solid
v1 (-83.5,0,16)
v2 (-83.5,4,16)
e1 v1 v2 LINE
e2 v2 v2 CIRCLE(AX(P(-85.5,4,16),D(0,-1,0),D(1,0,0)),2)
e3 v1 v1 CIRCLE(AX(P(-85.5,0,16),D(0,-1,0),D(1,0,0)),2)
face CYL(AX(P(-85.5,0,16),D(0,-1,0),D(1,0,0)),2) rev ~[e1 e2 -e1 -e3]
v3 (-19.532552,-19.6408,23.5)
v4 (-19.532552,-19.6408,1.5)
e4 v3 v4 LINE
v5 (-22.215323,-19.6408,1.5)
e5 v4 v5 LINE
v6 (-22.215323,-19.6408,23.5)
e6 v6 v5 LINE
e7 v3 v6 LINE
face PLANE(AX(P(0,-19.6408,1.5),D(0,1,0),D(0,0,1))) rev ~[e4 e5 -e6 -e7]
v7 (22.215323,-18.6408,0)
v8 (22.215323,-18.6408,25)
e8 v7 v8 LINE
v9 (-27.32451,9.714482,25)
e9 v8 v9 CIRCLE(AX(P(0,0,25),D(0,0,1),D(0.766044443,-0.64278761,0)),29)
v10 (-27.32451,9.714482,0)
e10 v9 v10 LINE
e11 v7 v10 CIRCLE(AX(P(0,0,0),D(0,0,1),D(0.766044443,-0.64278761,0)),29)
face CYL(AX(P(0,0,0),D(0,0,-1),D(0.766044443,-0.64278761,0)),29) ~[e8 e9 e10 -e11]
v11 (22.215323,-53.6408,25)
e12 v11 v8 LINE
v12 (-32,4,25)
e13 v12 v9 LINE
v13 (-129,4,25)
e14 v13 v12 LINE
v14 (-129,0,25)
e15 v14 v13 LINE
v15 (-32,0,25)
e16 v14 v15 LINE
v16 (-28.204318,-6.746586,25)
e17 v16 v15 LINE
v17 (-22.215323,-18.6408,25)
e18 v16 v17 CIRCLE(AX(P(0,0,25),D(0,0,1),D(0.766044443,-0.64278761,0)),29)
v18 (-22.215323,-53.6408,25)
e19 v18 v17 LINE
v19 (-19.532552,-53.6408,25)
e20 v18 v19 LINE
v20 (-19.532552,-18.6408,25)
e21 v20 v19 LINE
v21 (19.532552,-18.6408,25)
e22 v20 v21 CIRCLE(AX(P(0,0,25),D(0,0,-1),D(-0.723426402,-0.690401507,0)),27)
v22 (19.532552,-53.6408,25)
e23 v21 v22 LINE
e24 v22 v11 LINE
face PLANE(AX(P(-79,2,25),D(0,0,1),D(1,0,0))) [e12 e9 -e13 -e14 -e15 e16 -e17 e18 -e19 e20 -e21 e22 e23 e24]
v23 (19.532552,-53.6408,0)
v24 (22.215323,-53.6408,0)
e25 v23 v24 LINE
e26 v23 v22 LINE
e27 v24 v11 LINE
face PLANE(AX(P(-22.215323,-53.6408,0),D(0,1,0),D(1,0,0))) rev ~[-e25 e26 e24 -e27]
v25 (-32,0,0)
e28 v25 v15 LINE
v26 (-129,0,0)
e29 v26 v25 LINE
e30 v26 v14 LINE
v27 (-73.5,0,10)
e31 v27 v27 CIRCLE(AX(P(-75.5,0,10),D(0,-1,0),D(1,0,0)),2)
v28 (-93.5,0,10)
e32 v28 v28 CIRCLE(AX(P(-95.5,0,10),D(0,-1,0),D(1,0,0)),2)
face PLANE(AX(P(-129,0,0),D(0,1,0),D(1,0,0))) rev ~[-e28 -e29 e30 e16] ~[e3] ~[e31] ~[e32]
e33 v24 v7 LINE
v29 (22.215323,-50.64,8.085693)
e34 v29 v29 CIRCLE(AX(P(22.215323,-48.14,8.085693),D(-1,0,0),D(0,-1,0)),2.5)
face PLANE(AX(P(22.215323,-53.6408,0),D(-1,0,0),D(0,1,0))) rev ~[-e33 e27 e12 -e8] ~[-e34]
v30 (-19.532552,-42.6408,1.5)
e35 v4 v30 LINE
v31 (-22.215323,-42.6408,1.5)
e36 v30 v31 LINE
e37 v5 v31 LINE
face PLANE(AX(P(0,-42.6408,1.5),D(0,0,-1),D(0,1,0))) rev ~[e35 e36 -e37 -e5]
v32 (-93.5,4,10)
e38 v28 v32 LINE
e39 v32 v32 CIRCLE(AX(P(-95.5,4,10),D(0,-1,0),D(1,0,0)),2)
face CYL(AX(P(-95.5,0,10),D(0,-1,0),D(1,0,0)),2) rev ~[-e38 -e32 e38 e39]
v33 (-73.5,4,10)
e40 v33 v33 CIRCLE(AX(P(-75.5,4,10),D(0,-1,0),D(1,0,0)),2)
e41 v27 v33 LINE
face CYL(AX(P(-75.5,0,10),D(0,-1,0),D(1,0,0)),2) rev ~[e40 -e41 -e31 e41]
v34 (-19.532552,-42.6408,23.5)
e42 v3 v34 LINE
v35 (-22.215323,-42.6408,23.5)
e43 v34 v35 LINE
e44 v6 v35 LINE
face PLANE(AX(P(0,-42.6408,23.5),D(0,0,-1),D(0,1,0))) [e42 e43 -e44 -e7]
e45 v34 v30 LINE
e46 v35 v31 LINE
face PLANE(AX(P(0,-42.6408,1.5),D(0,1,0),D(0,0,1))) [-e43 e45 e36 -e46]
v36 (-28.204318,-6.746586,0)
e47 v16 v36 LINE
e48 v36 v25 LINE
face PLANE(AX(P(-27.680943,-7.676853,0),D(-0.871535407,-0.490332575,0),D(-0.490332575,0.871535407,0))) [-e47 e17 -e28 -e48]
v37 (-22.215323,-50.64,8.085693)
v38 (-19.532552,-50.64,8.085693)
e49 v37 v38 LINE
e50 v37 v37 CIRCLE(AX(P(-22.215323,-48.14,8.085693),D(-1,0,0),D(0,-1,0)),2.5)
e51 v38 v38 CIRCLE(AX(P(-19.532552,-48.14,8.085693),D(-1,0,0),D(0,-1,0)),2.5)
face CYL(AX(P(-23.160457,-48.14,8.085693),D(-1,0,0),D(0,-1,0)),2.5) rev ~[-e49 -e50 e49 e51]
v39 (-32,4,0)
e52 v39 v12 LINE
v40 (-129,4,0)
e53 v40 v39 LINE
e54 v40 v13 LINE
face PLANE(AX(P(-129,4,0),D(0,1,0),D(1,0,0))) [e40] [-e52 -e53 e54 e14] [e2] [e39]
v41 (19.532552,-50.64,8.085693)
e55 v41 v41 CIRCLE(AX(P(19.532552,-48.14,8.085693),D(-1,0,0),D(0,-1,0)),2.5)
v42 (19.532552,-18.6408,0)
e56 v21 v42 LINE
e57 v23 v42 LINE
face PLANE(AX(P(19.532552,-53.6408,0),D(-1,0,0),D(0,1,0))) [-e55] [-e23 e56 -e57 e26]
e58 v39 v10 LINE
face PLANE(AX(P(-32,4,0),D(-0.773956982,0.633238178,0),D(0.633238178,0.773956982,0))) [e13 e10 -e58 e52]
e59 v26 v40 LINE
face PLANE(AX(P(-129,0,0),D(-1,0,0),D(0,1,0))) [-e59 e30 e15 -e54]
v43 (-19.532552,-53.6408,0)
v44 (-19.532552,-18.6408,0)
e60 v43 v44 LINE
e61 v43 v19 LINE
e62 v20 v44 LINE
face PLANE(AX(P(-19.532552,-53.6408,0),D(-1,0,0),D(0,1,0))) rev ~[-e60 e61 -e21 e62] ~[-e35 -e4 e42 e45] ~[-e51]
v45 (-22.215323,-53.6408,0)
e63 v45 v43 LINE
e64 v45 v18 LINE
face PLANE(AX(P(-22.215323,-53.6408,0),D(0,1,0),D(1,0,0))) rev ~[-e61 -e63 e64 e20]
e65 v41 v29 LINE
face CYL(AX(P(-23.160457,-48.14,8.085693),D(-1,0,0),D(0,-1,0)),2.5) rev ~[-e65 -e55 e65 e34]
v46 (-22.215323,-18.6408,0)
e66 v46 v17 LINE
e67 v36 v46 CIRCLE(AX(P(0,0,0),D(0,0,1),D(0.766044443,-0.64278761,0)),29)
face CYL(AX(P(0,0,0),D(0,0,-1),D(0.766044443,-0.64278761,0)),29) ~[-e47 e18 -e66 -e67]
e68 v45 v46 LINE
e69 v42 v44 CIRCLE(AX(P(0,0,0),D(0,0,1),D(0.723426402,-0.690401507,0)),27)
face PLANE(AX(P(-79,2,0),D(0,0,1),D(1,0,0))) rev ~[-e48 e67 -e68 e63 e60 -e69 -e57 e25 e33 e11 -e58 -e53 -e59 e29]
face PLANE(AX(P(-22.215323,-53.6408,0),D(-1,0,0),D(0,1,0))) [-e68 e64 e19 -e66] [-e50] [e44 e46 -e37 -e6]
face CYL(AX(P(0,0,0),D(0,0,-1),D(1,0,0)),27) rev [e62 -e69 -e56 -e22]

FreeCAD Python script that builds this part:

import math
import FreeCAD as App
import Part
import Sketcher


def add_polygon(sketch, points):
    """Adds a closed chain of lines whose ends are joined by coincident constraints."""
    first, n = sketch.GeometryCount, len(points)
    for a, b in zip(points, points[1:] + points[:1]):
        sketch.addGeometry(Part.LineSegment(App.Vector(*a, 0), App.Vector(*b, 0)), False)
    for i in range(n):
        sketch.addConstraint(Sketcher.Constraint("Coincident", first + i, 2, first + (i + 1) % n, 1))

doc = App.newDocument("Part")
body = doc.addObject("PartDesign::Body", "Body")

sketch1 = doc.addObject("Sketcher::SketchObject", "Sketch")
body.addObject(sketch1)
sketch1.AttachmentSupport = (doc.XY_Plane, [""])
sketch1.MapMode = "FlatFace"
sketch1.addGeometry(Part.ArcOfCircle(Part.Circle(App.Vector(0, 0, 0), App.Vector(0, 0, 1), 29), math.radians(-40), math.radians(220)), False)
sketch1.addGeometry(Part.LineSegment(App.Vector(-22.215289, -18.640841, 0), App.Vector(22.215289, -18.640841, 0)), False)
sketch1.addConstraint(Sketcher.Constraint("Coincident", 0, 1, 1, 2))
sketch1.addConstraint(Sketcher.Constraint("Coincident", 1, 1, 0, 2))
sketch1.addConstraint(Sketcher.Constraint("Horizontal", 1))
sketch1.addConstraint(Sketcher.Constraint("Coincident", 0, 3, -1, 1))
sketch1.addConstraint(Sketcher.Constraint("Radius", 0, 29.0))
sketch1.addConstraint(Sketcher.Constraint("DistanceX", 1, 1, 1, 2, 44.430578))
pad1 = doc.addObject("PartDesign::Pad", "Pad")
body.addObject(pad1)
pad1.Profile = sketch1
pad1.Length = 25

sketch2 = doc.addObject("Sketcher::SketchObject", "Sketch001")
body.addObject(sketch2)
sketch2.AttachmentSupport = (doc.XY_Plane, [""])
sketch2.MapMode = "FlatFace"
sketch2.addGeometry(Part.Circle(App.Vector(0, 0, 0), App.Vector(0, 0, 1), 27), False)
sketch2.addConstraint(Sketcher.Constraint("Coincident", 0, 3, -1, 1))
sketch2.addConstraint(Sketcher.Constraint("Diameter", 0, 54.0))
pocket1 = doc.addObject("PartDesign::Pocket", "Pocket")
body.addObject(pocket1)
pocket1.Profile = sketch2
pocket1.Length = 25
pocket1.Reversed = True

sketch3 = doc.addObject("Sketcher::SketchObject", "Sketch002")
body.addObject(sketch3)
sketch3.AttachmentSupport = (doc.XY_Plane, [""])
sketch3.MapMode = "FlatFace"
add_polygon(sketch3, [(-22.215323, -18.6408), (-22.215323, -53.6408), (22.215323, -53.6408), (22.215323, -18.6408)])
sketch3.addConstraint(Sketcher.Constraint("Vertical", 0))
sketch3.addConstraint(Sketcher.Constraint("Horizontal", 1))
sketch3.addConstraint(Sketcher.Constraint("Vertical", 2))
sketch3.addConstraint(Sketcher.Constraint("Horizontal", 3))
sketch3.addConstraint(Sketcher.Constraint("DistanceY", 0, 2, 0, 1, 35.0))
sketch3.addConstraint(Sketcher.Constraint("DistanceY", 0, 2, -1, 1, 53.6408))
sketch3.addConstraint(Sketcher.Constraint("DistanceX", 1, 1, 1, 2, 44.430646))
sketch3.addConstraint(Sketcher.Constraint("DistanceX", 0, 2, -1, 1, 22.215323))
pad2 = doc.addObject("PartDesign::Pad", "Pad001")
body.addObject(pad2)
pad2.Profile = sketch3
pad2.Length = 25

sketch4 = doc.addObject("Sketcher::SketchObject", "Sketch003")
body.addObject(sketch4)
sketch4.AttachmentSupport = (doc.XY_Plane, [""])
sketch4.MapMode = "FlatFace"
add_polygon(sketch4, [(-19.532552, -18.6408), (-19.532552, -53.6408), (19.532552, -53.6408), (19.532552, -18.6408)])
sketch4.addConstraint(Sketcher.Constraint("Vertical", 0))
sketch4.addConstraint(Sketcher.Constraint("Horizontal", 1))
sketch4.addConstraint(Sketcher.Constraint("Vertical", 2))
sketch4.addConstraint(Sketcher.Constraint("Horizontal", 3))
sketch4.addConstraint(Sketcher.Constraint("DistanceY", 0, 2, 0, 1, 35.0))
sketch4.addConstraint(Sketcher.Constraint("DistanceY", 0, 2, -1, 1, 53.6408))
sketch4.addConstraint(Sketcher.Constraint("DistanceX", 1, 1, 1, 2, 39.065103))
sketch4.addConstraint(Sketcher.Constraint("DistanceX", 0, 2, -1, 1, 19.532552))
pocket2 = doc.addObject("PartDesign::Pocket", "Pocket001")
body.addObject(pocket2)
pocket2.Profile = sketch4
pocket2.Length = 36
pocket2.Reversed = True

sketch5 = doc.addObject("Sketcher::SketchObject", "Sketch004")
body.addObject(sketch5)
sketch5.AttachmentSupport = (doc.YZ_Plane, [""])
sketch5.MapMode = "FlatFace"
add_polygon(sketch5, [(-42.6408, 23.5), (-42.6408, 1.5), (-19.6408, 1.5), (-19.6408, 23.5)])
sketch5.addConstraint(Sketcher.Constraint("Vertical", 0))
sketch5.addConstraint(Sketcher.Constraint("Horizontal", 1))
sketch5.addConstraint(Sketcher.Constraint("Vertical", 2))
sketch5.addConstraint(Sketcher.Constraint("Horizontal", 3))
sketch5.addConstraint(Sketcher.Constraint("DistanceX", 1, 1, 1, 2, 23.0))
sketch5.addConstraint(Sketcher.Constraint("DistanceY", 0, 2, 0, 1, 22.0))
sketch5.addConstraint(Sketcher.Constraint("DistanceY", -1, 1, 0, 2, 1.5))
sketch5.addConstraint(Sketcher.Constraint("DistanceX", 0, 2, -1, 1, 42.6408))
pocket3 = doc.addObject("PartDesign::Pocket", "Pocket002")
body.addObject(pocket3)
pocket3.Profile = sketch5
pocket3.Length = 36

sketch6 = doc.addObject("Sketcher::SketchObject", "Sketch005")
body.addObject(sketch6)
sketch6.AttachmentSupport = (doc.YZ_Plane, [""])
sketch6.MapMode = "FlatFace"
sketch6.AttachmentOffset = App.Placement(App.Vector(0, 0, -23.160457), App.Rotation())
sketch6.addGeometry(Part.Circle(App.Vector(-48.14, 8.085693, 0), App.Vector(0, 0, 1), 2.5), False)
sketch6.addConstraint(Sketcher.Constraint("Diameter", 0, 5.0))
sketch6.addConstraint(Sketcher.Constraint("DistanceX", 0, 3, -1, 1, 48.14))
sketch6.addConstraint(Sketcher.Constraint("DistanceY", -1, 1, 0, 3, 8.085693))
pocket4 = doc.addObject("PartDesign::Pocket", "Pocket003")
body.addObject(pocket4)
pocket4.Profile = sketch6
pocket4.Type = "ThroughAll"
pocket4.Reversed = True

sketch7 = doc.addObject("Sketcher::SketchObject", "Sketch006")
body.addObject(sketch7)
sketch7.AttachmentSupport = (doc.XY_Plane, [""])
sketch7.MapMode = "FlatFace"
add_polygon(sketch7, [(-129, 4), (-129, 0), (-32, 0), (-27.680943, -7.676853), (-27.017239, 10.090035), (-32, 4)])
sketch7.addConstraint(Sketcher.Constraint("Vertical", 0))
sketch7.addConstraint(Sketcher.Constraint("Horizontal", 1))
sketch7.addConstraint(Sketcher.Constraint("Horizontal", 5))
sketch7.addConstraint(Sketcher.Constraint("PointOnObject", 0, 2, -1))
sketch7.addConstraint(Sketcher.Constraint("Vertical", 1, 2, 4, 2))
sketch7.addConstraint(Sketcher.Constraint("DistanceX", 1, 1, 1, 2, 97.0))
sketch7.addConstraint(Sketcher.Constraint("DistanceY", 0, 2, 0, 1, 4.0))
sketch7.addConstraint(Sketcher.Constraint("DistanceX", 0, 2, -1, 1, 129.0))
sketch7.addConstraint(Sketcher.Constraint("Distance", 4, 7.8687))
sketch7.addConstraint(Sketcher.Constraint("Distance", 3, 17.77928))
sketch7.addConstraint(Sketcher.Constraint("DistanceX", 3, 2, -1, 1, 27.017239))
sketch7.addConstraint(Sketcher.Constraint("DistanceY", 2, 2, 3, 2, 17.766888))
pad3 = doc.addObject("PartDesign::Pad", "Pad002")
body.addObject(pad3)
pad3.Profile = sketch7
pad3.Length = 25

sketch8 = doc.addObject("Sketcher::SketchObject", "Sketch007")
body.addObject(sketch8)
sketch8.AttachmentSupport = (doc.XZ_Plane, [""])
sketch8.MapMode = "FlatFace"
sketch8.addGeometry(Part.Circle(App.Vector(-95.5, 10, 0), App.Vector(0, 0, 1), 2), False)
sketch8.addGeometry(Part.Circle(App.Vector(-85.5, 16, 0), App.Vector(0, 0, 1), 2), False)
sketch8.addGeometry(Part.Circle(App.Vector(-75.5, 10, 0), App.Vector(0, 0, 1), 2), False)
sketch8.addConstraint(Sketcher.Constraint("Equal", 0, 1))
sketch8.addConstraint(Sketcher.Constraint("Equal", 1, 2))
sketch8.addConstraint(Sketcher.Constraint("Horizontal", 0, 3, 2, 3))
sketch8.addConstraint(Sketcher.Constraint("Diameter", 0, 4.0))
sketch8.addConstraint(Sketcher.Constraint("DistanceY", -1, 1, 0, 3, 10.0))
sketch8.addConstraint(Sketcher.Constraint("DistanceY", -1, 1, 1, 3, 16.0))
sketch8.addConstraint(Sketcher.Constraint("DistanceX", 0, 3, 1, 3, 10.0))
sketch8.addConstraint(Sketcher.Constraint("DistanceX", 1, 3, 2, 3, 10.0))
sketch8.addConstraint(Sketcher.Constraint("DistanceX", 0, 3, -1, 1, 95.5))
pocket5 = doc.addObject("PartDesign::Pocket", "Pocket004")
body.addObject(pocket5)
pocket5.Profile = sketch8
pocket5.Length = 4

doc.recompute()
